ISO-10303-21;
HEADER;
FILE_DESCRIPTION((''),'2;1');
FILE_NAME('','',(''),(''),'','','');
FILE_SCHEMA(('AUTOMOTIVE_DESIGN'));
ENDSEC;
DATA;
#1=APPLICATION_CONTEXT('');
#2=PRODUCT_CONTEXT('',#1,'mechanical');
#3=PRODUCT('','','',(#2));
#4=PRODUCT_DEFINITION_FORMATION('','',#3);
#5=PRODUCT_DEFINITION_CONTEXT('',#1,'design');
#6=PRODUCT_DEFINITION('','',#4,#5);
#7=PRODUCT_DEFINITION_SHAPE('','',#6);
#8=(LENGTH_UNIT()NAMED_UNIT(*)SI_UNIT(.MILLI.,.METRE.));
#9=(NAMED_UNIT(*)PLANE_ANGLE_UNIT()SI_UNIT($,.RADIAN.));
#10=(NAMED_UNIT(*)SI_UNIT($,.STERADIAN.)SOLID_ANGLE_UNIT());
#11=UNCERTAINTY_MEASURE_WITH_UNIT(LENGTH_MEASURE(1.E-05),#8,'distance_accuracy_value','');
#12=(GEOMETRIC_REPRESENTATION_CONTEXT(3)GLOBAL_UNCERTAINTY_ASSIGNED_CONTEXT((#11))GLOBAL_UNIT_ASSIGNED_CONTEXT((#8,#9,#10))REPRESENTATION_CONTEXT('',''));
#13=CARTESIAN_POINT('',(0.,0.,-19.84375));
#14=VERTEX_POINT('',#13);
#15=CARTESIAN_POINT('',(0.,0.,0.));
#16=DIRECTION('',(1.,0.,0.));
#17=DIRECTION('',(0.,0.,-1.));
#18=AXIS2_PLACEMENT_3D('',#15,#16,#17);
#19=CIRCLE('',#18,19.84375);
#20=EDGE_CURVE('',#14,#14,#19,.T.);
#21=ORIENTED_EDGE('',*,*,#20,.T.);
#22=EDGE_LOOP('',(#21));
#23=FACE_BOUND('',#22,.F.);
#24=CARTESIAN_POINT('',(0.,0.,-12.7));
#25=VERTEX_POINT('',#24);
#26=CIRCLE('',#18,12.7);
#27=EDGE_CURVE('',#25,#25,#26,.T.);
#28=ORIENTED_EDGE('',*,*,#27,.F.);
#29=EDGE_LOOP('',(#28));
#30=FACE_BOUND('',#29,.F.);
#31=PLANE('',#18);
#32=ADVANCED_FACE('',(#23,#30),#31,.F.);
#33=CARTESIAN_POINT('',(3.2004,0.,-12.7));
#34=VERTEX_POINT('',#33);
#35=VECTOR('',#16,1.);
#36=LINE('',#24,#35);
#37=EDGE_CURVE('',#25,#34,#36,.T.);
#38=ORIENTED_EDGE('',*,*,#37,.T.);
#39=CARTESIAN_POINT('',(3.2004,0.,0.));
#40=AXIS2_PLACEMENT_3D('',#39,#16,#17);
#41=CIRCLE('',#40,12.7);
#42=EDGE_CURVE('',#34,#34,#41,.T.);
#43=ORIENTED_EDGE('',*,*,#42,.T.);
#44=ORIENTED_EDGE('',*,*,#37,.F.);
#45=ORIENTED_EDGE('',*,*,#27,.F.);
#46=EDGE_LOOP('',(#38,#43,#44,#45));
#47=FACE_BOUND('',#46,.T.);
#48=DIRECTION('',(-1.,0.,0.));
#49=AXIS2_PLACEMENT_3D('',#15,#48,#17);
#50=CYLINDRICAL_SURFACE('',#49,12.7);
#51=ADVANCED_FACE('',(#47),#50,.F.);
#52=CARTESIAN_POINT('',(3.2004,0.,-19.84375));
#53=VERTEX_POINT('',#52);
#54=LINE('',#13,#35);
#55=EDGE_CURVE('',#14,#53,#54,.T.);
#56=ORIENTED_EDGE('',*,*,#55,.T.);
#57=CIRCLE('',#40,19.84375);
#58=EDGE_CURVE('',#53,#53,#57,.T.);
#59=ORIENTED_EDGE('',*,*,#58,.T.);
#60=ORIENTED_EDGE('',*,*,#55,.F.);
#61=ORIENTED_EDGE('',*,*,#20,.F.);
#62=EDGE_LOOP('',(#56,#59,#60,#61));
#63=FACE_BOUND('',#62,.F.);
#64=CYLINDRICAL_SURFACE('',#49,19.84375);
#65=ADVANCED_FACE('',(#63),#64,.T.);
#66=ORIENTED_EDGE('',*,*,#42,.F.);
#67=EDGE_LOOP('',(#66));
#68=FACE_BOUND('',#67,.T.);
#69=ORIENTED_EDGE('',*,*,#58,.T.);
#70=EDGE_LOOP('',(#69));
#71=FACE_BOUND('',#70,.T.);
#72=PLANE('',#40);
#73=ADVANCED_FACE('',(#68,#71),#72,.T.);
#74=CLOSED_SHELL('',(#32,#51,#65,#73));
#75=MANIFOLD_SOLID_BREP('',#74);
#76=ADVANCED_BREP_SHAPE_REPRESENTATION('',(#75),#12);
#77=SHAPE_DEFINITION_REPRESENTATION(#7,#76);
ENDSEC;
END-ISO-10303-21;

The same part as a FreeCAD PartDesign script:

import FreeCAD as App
import Part
import Sketcher
from FreeCAD import Vector
Q = App.Units.Quantity

doc = App.newDocument("Part")
body = doc.addObject("PartDesign::Body", "Body")

# Sketch on YZ plane
sketch1 = body.newObject("Sketcher::SketchObject", "Sketch")
sketch1.AttachmentSupport = (doc.getObject("YZ_Plane"), [""])
sketch1.MapMode = "FlatFace"
sketch1.addGeometry([
    Part.Circle(Vector(0, 0, 0), Vector(0, 0, 1), 19.84375),
    Part.Circle(Vector(0, 0, 0), Vector(0, 0, 1), 12.7),
], False)
sketch1.addConstraint([
    Sketcher.Constraint("Coincident", 0, 3, -1, 1),
    Sketcher.Constraint("Coincident", 1, 3, -1, 1),
    Sketcher.Constraint("Diameter", 1, Q("1 in")),
    Sketcher.Constraint("Diameter", 0, Q("1.5625 in")),
])
pad1 = body.newObject("PartDesign::Pad", "Pad")
pad1.Profile = sketch1
pad1.Length = Q("0.126 in")

doc.recompute()
